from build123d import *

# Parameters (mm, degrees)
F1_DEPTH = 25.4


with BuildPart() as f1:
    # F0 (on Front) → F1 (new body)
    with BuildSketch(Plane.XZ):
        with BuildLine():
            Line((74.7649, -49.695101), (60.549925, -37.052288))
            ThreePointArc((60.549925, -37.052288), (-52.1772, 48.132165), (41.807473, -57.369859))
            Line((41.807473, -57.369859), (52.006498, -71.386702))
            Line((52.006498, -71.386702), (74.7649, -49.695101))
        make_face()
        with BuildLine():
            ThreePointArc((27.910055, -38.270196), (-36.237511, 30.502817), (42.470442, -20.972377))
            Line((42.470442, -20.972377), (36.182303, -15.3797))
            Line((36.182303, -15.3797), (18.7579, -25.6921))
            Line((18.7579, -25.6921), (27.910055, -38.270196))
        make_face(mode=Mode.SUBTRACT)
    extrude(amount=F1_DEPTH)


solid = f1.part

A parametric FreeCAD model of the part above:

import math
import FreeCAD as App
import Part
import Sketcher
from FreeCAD import Vector
Q = App.Units.Quantity

doc = App.newDocument("Part")
body = doc.addObject("PartDesign::Body", "Body")

# Sketch on XZ plane
sketch1 = doc.addObject("Sketcher::SketchObject", "Sketch")
body.addObject(sketch1)
sketch1.AttachmentSupport = (doc.XZ_Plane, [""])
sketch1.MapMode = "FlatFace"
sketch1.addGeometry([
    Part.LineSegment(Vector(75, -50, 0), Vector(61, -37, 0)),  # 0
    Part.ArcOfCircle(Part.Circle(Vector(0, 0, 0), Vector(0, 0, 1), 71), math.radians(-31), math.radians(306)),  # 1
    Part.LineSegment(Vector(42, -57, 0), Vector(52, -71, 0)),  # 2
    Part.LineSegment(Vector(52, -71, 0), Vector(75, -50, 0)),  # 3
    Part.LineSegment(Vector(19, -26, 0), Vector(28, -38, 0)),  # 4
    Part.ArcOfCircle(Part.Circle(Vector(0, 0, 0), Vector(0, 0, 1), 47), math.radians(-26), math.radians(306)),  # 5
    Part.LineSegment(Vector(42, -21, 0), Vector(36, -15, 0)),  # 6
    Part.LineSegment(Vector(36, -15, 0), Vector(19, -26, 0)),  # 7
], False)
sketch1.addConstraint([
    Sketcher.Constraint("Coincident", 0, 2, 1, 1),
    Sketcher.Constraint("Coincident", 1, 2, 2, 1),
    Sketcher.Constraint("Coincident", 2, 2, 3, 1),
    Sketcher.Constraint("Coincident", 3, 2, 0, 1),
    Sketcher.Constraint("Coincident", 4, 2, 5, 2),
    Sketcher.Constraint("Coincident", 5, 1, 6, 1),
    Sketcher.Constraint("Coincident", 6, 2, 7, 1),
    Sketcher.Constraint("Coincident", 7, 2, 4, 1),
    Sketcher.Constraint("Coincident", 1, 3, -1, 1),
    Sketcher.Constraint("Coincident", 5, 3, -1, 1),
    Sketcher.Constraint("Parallel", 2, 4),
    Sketcher.Constraint("Parallel", 0, 6),
    Sketcher.Constraint("Radius", 1, 70.98708),
    Sketcher.Constraint("DistanceX", 2, 2, 3, 2, Q("0.8960001 in")),
    Sketcher.Constraint("DistanceY", 2, 2, 3, 2, Q("0.854 in")),
    Sketcher.Constraint("DistanceX", 7, 2, 6, 2, Q("0.6860001 in")),
    Sketcher.Constraint("DistanceY", 7, 2, 6, 2, Q("0.406 in")),
    Sketcher.Constraint("DistanceX", -1, 1, 2, 2, Q("2.0474999 in")),
    Sketcher.Constraint("DistanceY", 2, 2, -1, 1, Q("2.8105001 in")),
    Sketcher.Constraint("DistanceX", -1, 1, 6, 2, Q("1.4245001 in")),
    Sketcher.Constraint("DistanceY", 6, 2, -1, 1, Q("0.6055 in")),
    Sketcher.Constraint("Radius", 5, 47.366434),
    Sketcher.Constraint("DistanceY", 1, 2, -1, 1, 57.369859),
    Sketcher.Constraint("DistanceX", -1, 1, 5, 1, 42.470442),
])
pad1 = doc.addObject("PartDesign::Pad", "Pad")
body.addObject(pad1)
pad1.Profile = sketch1
pad1.Length = Q("1 in")

doc.recompute()
